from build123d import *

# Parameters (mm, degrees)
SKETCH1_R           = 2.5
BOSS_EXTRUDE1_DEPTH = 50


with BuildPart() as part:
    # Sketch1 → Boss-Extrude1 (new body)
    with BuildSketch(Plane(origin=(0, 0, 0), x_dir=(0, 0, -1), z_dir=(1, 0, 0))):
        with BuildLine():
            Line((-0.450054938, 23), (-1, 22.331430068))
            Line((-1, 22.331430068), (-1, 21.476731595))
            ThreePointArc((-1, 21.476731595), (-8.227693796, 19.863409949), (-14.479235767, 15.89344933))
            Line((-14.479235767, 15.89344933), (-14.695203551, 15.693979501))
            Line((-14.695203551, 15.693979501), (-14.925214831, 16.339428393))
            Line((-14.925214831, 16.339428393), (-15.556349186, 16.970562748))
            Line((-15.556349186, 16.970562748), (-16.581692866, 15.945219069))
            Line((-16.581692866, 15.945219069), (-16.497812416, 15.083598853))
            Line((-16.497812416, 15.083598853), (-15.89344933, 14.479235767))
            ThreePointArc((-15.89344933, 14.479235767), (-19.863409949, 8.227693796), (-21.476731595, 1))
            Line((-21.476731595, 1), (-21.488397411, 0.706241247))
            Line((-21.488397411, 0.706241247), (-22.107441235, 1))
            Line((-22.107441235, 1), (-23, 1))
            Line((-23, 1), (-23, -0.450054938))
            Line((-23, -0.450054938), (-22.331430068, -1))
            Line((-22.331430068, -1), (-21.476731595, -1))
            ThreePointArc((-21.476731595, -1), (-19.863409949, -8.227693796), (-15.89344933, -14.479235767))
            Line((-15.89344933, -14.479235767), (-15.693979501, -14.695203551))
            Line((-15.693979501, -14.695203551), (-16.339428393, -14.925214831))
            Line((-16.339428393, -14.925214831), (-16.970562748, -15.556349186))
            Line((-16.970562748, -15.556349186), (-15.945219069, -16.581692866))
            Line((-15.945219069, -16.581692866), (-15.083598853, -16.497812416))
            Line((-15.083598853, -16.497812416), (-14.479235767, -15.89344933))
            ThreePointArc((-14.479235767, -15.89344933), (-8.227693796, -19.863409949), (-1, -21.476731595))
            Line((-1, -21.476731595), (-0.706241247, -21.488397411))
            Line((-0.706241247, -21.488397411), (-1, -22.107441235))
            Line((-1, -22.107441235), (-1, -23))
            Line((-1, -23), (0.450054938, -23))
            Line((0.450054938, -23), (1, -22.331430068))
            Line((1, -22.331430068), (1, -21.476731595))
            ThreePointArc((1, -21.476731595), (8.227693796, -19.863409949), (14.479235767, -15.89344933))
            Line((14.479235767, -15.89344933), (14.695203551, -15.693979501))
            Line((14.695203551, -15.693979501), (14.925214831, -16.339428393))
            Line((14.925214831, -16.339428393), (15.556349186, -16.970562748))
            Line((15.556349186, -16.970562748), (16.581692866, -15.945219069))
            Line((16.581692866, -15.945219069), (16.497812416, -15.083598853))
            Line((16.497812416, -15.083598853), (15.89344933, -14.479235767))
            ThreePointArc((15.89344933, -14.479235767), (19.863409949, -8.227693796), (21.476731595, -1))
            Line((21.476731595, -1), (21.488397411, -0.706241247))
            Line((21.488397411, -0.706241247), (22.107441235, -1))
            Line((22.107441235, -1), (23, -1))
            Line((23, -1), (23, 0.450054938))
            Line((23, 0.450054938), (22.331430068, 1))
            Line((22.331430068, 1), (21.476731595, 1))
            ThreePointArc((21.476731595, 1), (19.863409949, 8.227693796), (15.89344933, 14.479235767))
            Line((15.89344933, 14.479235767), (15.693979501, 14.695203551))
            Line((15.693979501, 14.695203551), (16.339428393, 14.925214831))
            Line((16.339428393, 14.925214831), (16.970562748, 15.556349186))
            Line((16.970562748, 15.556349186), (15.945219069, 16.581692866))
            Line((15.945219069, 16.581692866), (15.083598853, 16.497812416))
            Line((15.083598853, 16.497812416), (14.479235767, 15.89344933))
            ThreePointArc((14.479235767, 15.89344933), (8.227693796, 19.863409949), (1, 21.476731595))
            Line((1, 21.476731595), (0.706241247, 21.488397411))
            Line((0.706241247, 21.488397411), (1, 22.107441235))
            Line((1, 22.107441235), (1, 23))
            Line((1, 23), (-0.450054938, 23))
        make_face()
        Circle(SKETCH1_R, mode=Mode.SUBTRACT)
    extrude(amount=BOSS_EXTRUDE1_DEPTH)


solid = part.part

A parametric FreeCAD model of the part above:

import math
import FreeCAD as App
import Part
import Sketcher

V = App.Vector
Q = App.Units.Quantity

doc = App.newDocument("Part")
body = doc.addObject("PartDesign::Body", "Body")

sketch1 = body.newObject("Sketcher::SketchObject", "Sketch")
sketch1.AttachmentSupport = (doc.getObject("YZ_Plane"), [""])
sketch1.MapMode = "FlatFace"
sketch1.addGeometry([
    Part.LineSegment(V(23, 0.450055, 0), V(22.33143, 1, 0)),
    Part.LineSegment(V(22.33143, 1, 0), V(21.476732, 1, 0)),
    Part.ArcOfCircle(Part.Circle(V(0, 0, 0), V(0, 0, 1), 21.5), math.radians(2.665882), math.radians(42.334118)),
    Part.LineSegment(V(15.893449, 14.479236, 0), V(15.69398, 14.695204, 0)),
    Part.LineSegment(V(15.69398, 14.695204, 0), V(16.339428, 14.925215, 0)),
    Part.LineSegment(V(16.339428, 14.925215, 0), V(16.970563, 15.556349, 0)),
    Part.LineSegment(V(16.970563, 15.556349, 0), V(15.945219, 16.581693, 0)),
    Part.LineSegment(V(15.945219, 16.581693, 0), V(15.083599, 16.497812, 0)),
    Part.LineSegment(V(15.083599, 16.497812, 0), V(14.479236, 15.893449, 0)),
    Part.ArcOfCircle(Part.Circle(V(0, 0, 0), V(0, 0, 1), 21.5), math.radians(47.665882), math.radians(87.334118)),
    Part.LineSegment(V(1, 21.476732, 0), V(0.706241, 21.488397, 0)),
    Part.LineSegment(V(0.706241, 21.488397, 0), V(1, 22.107441, 0)),
    Part.LineSegment(V(1, 22.107441, 0), V(1, 23, 0)),
    Part.LineSegment(V(1, 23, 0), V(-0.450055, 23, 0)),
    Part.LineSegment(V(-0.450055, 23, 0), V(-1, 22.33143, 0)),
    Part.LineSegment(V(-1, 22.33143, 0), V(-1, 21.476732, 0)),
    Part.ArcOfCircle(Part.Circle(V(0, 0, 0), V(0, 0, 1), 21.5), math.radians(92.665882), math.radians(132.334118)),
    Part.LineSegment(V(-14.479236, 15.893449, 0), V(-14.695204, 15.69398, 0)),
    Part.LineSegment(V(-14.695204, 15.69398, 0), V(-14.925215, 16.339428, 0)),
    Part.LineSegment(V(-14.925215, 16.339428, 0), V(-15.556349, 16.970563, 0)),
    Part.LineSegment(V(-15.556349, 16.970563, 0), V(-16.581693, 15.945219, 0)),
    Part.LineSegment(V(-16.581693, 15.945219, 0), V(-16.497812, 15.083599, 0)),
    Part.LineSegment(V(-16.497812, 15.083599, 0), V(-15.893449, 14.479236, 0)),
    Part.ArcOfCircle(Part.Circle(V(0, 0, 0), V(0, 0, 1), 21.5), math.radians(137.665882), math.radians(177.334118)),
    Part.LineSegment(V(-21.476732, 1, 0), V(-21.488397, 0.706241, 0)),
    Part.LineSegment(V(-21.488397, 0.706241, 0), V(-22.107441, 1, 0)),
    Part.LineSegment(V(-22.107441, 1, 0), V(-23, 1, 0)),
    Part.LineSegment(V(-23, 1, 0), V(-23, -0.450055, 0)),
    Part.LineSegment(V(-23, -0.450055, 0), V(-22.33143, -1, 0)),
    Part.LineSegment(V(-22.33143, -1, 0), V(-21.476732, -1, 0)),
    Part.ArcOfCircle(Part.Circle(V(0, 0, 0), V(0, 0, 1), 21.5), math.radians(-177.334118), math.radians(-137.665882)),
    Part.LineSegment(V(-15.893449, -14.479236, 0), V(-15.69398, -14.695204, 0)),
    Part.LineSegment(V(-15.69398, -14.695204, 0), V(-16.339428, -14.925215, 0)),
    Part.LineSegment(V(-16.339428, -14.925215, 0), V(-16.970563, -15.556349, 0)),
    Part.LineSegment(V(-16.970563, -15.556349, 0), V(-15.945219, -16.581693, 0)),
    Part.LineSegment(V(-15.945219, -16.581693, 0), V(-15.083599, -16.497812, 0)),
    Part.LineSegment(V(-15.083599, -16.497812, 0), V(-14.479236, -15.893449, 0)),
    Part.ArcOfCircle(Part.Circle(V(0, 0, 0), V(0, 0, 1), 21.5), math.radians(-132.334118), math.radians(-92.665882)),
    Part.LineSegment(V(-1, -21.476732, 0), V(-0.706241, -21.488397, 0)),
    Part.LineSegment(V(-0.706241, -21.488397, 0), V(-1, -22.107441, 0)),
    Part.LineSegment(V(-1, -22.107441, 0), V(-1, -23, 0)),
    Part.LineSegment(V(-1, -23, 0), V(0.450055, -23, 0)),
    Part.LineSegment(V(0.450055, -23, 0), V(1, -22.33143, 0)),
    Part.LineSegment(V(1, -22.33143, 0), V(1, -21.476732, 0)),
    Part.ArcOfCircle(Part.Circle(V(0, 0, 0), V(0, 0, 1), 21.5), math.radians(-87.334118), math.radians(-47.665882)),
    Part.LineSegment(V(14.479236, -15.893449, 0), V(14.695204, -15.69398, 0)),
    Part.LineSegment(V(14.695204, -15.69398, 0), V(14.925215, -16.339428, 0)),
    Part.LineSegment(V(14.925215, -16.339428, 0), V(15.556349, -16.970563, 0)),
    Part.LineSegment(V(15.556349, -16.970563, 0), V(16.581693, -15.945219, 0)),
    Part.LineSegment(V(16.581693, -15.945219, 0), V(16.497812, -15.083599, 0)),
    Part.LineSegment(V(16.497812, -15.083599, 0), V(15.893449, -14.479236, 0)),
    Part.ArcOfCircle(Part.Circle(V(0, 0, 0), V(0, 0, 1), 21.5), math.radians(-42.334118), math.radians(-2.665882)),
    Part.LineSegment(V(21.476732, -1, 0), V(21.488397, -0.706241, 0)),
    Part.LineSegment(V(21.488397, -0.706241, 0), V(22.107441, -1, 0)),
    Part.LineSegment(V(22.107441, -1, 0), V(23, -1, 0)),
    Part.LineSegment(V(23, -1, 0), V(23, 0.450055, 0)),
    Part.Circle(V(0, 0, 0), V(0, 0, 1), 2.5),
], False)
sketch1.addConstraint([
    Sketcher.Constraint("Coincident", 0, 2, 1, 1),
    Sketcher.Constraint("Coincident", 1, 2, 2, 1),
    Sketcher.Constraint("Coincident", 2, 2, 3, 1),
    Sketcher.Constraint("Coincident", 3, 2, 4, 1),
    Sketcher.Constraint("Coincident", 4, 2, 5, 1),
    Sketcher.Constraint("Coincident", 5, 2, 6, 1),
    Sketcher.Constraint("Coincident", 6, 2, 7, 1),
    Sketcher.Constraint("Coincident", 7, 2, 8, 1),
    Sketcher.Constraint("Coincident", 8, 2, 9, 1),
    Sketcher.Constraint("Coincident", 9, 2, 10, 1),
    Sketcher.Constraint("Coincident", 10, 2, 11, 1),
    Sketcher.Constraint("Coincident", 11, 2, 12, 1),
    Sketcher.Constraint("Coincident", 12, 2, 13, 1),
    Sketcher.Constraint("Coincident", 13, 2, 14, 1),
    Sketcher.Constraint("Coincident", 14, 2, 15, 1),
    Sketcher.Constraint("Coincident", 15, 2, 16, 1),
    Sketcher.Constraint("Coincident", 16, 2, 17, 1),
    Sketcher.Constraint("Coincident", 17, 2, 18, 1),
    Sketcher.Constraint("Coincident", 18, 2, 19, 1),
    Sketcher.Constraint("Coincident", 19, 2, 20, 1),
    Sketcher.Constraint("Coincident", 20, 2, 21, 1),
    Sketcher.Constraint("Coincident", 21, 2, 22, 1),
    Sketcher.Constraint("Coincident", 22, 2, 23, 1),
    Sketcher.Constraint("Coincident", 23, 2, 24, 1),
    Sketcher.Constraint("Coincident", 24, 2, 25, 1),
    Sketcher.Constraint("Coincident", 25, 2, 26, 1),
    Sketcher.Constraint("Coincident", 26, 2, 27, 1),
    Sketcher.Constraint("Coincident", 27, 2, 28, 1),
    Sketcher.Constraint("Coincident", 28, 2, 29, 1),
    Sketcher.Constraint("Coincident", 29, 2, 30, 1),
    Sketcher.Constraint("Coincident", 30, 2, 31, 1),
    Sketcher.Constraint("Coincident", 31, 2, 32, 1),
    Sketcher.Constraint("Coincident", 32, 2, 33, 1),
    Sketcher.Constraint("Coincident", 33, 2, 34, 1),
    Sketcher.Constraint("Coincident", 34, 2, 35, 1),
    Sketcher.Constraint("Coincident", 35, 2, 36, 1),
    Sketcher.Constraint("Coincident", 36, 2, 37, 1),
    Sketcher.Constraint("Coincident", 37, 2, 38, 1),
    Sketcher.Constraint("Coincident", 38, 2, 39, 1),
    Sketcher.Constraint("Coincident", 39, 2, 40, 1),
    Sketcher.Constraint("Coincident", 40, 2, 41, 1),
    Sketcher.Constraint("Coincident", 41, 2, 42, 1),
    Sketcher.Constraint("Coincident", 42, 2, 43, 1),
    Sketcher.Constraint("Coincident", 43, 2, 44, 1),
    Sketcher.Constraint("Coincident", 44, 2, 45, 1),
    Sketcher.Constraint("Coincident", 45, 2, 46, 1),
    Sketcher.Constraint("Coincident", 46, 2, 47, 1),
    Sketcher.Constraint("Coincident", 47, 2, 48, 1),
    Sketcher.Constraint("Coincident", 48, 2, 49, 1),
    Sketcher.Constraint("Coincident", 49, 2, 50, 1),
    Sketcher.Constraint("Coincident", 50, 2, 51, 1),
    Sketcher.Constraint("Coincident", 51, 2, 52, 1),
    Sketcher.Constraint("Coincident", 52, 2, 53, 1),
    Sketcher.Constraint("Coincident", 53, 2, 54, 1),
    Sketcher.Constraint("Coincident", 54, 2, 55, 1),
    Sketcher.Constraint("Coincident", 55, 2, 0, 1),
    Sketcher.Constraint("Horizontal", 1),
    Sketcher.Constraint("Vertical", 12),
    Sketcher.Constraint("Horizontal", 13),
    Sketcher.Constraint("Vertical", 15),
    Sketcher.Constraint("Horizontal", 26),
    Sketcher.Constraint("Vertical", 27),
    Sketcher.Constraint("Horizontal", 29),
    Sketcher.Constraint("Vertical", 40),
    Sketcher.Constraint("Horizontal", 41),
    Sketcher.Constraint("Vertical", 43),
    Sketcher.Constraint("Horizontal", 54),
    Sketcher.Constraint("Vertical", 55),
    Sketcher.Constraint("Coincident", 2, 3, -1, 1),
    Sketcher.Constraint("Coincident", 9, 3, -1, 1),
    Sketcher.Constraint("Coincident", 16, 3, -1, 1),
    Sketcher.Constraint("Coincident", 23, 3, -1, 1),
    Sketcher.Constraint("Coincident", 30, 3, -1, 1),
    Sketcher.Constraint("Coincident", 37, 3, -1, 1),
    Sketcher.Constraint("Coincident", 44, 3, -1, 1),
    Sketcher.Constraint("Coincident", 51, 3, -1, 1),
    Sketcher.Constraint("Coincident", 56, 3, -1, 1),
    Sketcher.Constraint("Equal", 2, 9),
    Sketcher.Constraint("Equal", 9, 16),
    Sketcher.Constraint("Equal", 16, 23),
    Sketcher.Constraint("Equal", 23, 30),
    Sketcher.Constraint("Equal", 30, 37),
    Sketcher.Constraint("Equal", 37, 44),
    Sketcher.Constraint("Equal", 44, 51),
    Sketcher.Constraint("Symmetric", 0, 2, 28, 2, -1, 1),
    Sketcher.Constraint("Symmetric", 3, 2, 31, 2, -1, 1),
    Sketcher.Constraint("Symmetric", 4, 2, 32, 2, -1, 1),
    Sketcher.Constraint("Symmetric", 5, 2, 33, 2, -1, 1),
    Sketcher.Constraint("Symmetric", 6, 2, 34, 2, -1, 1),
    Sketcher.Constraint("Symmetric", 7, 2, 35, 2, -1, 1),
    Sketcher.Constraint("Symmetric", 10, 2, 38, 2, -1, 1),
    Sketcher.Constraint("Symmetric", 11, 2, 39, 2, -1, 1),
    Sketcher.Constraint("Symmetric", 13, 2, 41, 2, -1, 1),
    Sketcher.Constraint("Symmetric", 14, 2, 42, 2, -1, 1),
    Sketcher.Constraint("Symmetric", 17, 2, 45, 2, -1, 1),
    Sketcher.Constraint("Symmetric", 18, 2, 46, 2, -1, 1),
    Sketcher.Constraint("Symmetric", 19, 2, 47, 2, -1, 1),
    Sketcher.Constraint("Symmetric", 20, 2, 48, 2, -1, 1),
    Sketcher.Constraint("Symmetric", 21, 2, 49, 2, -1, 1),
    Sketcher.Constraint("Symmetric", 24, 2, 52, 2, -1, 1),
    Sketcher.Constraint("Symmetric", 25, 2, 53, 2, -1, 1),
    Sketcher.Constraint("Symmetric", 27, 2, 55, 2, -1, 1),
    Sketcher.Constraint("Perpendicular", 5, 6),
    Sketcher.Constraint("Perpendicular", 6, 8),
    Sketcher.Constraint("Perpendicular", 0, 14),
    Sketcher.Constraint("Perpendicular", 3, 17),
    Sketcher.Constraint("Perpendicular", 4, 18),
    Sketcher.Constraint("Perpendicular", 8, 19),
    Sketcher.Constraint("Perpendicular", 19, 20),
    Sketcher.Constraint("Perpendicular", 7, 21),
    Sketcher.Constraint("Perpendicular", 20, 22),
    Sketcher.Constraint("Perpendicular", 10, 24),
    Sketcher.Constraint("Perpendicular", 11, 25),
    Sketcher.Constraint("Perpendicular", 17, 31),
    Sketcher.Constraint("Perpendicular", 34, 36),
    Sketcher.Constraint("Perpendicular", 24, 38),
    Sketcher.Constraint("Perpendicular", 31, 45),
    Sketcher.Constraint("Perpendicular", 48, 50),
    Sketcher.Constraint("Perpendicular", 38, 52),
    Sketcher.Constraint("Horizontal", 9, 2, 15, 2),
    Sketcher.Constraint("Horizontal", 8, 2, 16, 2),
    Sketcher.Constraint("Horizontal", 2, 2, 22, 2),
    Sketcher.Constraint("Horizontal", 1, 2, 23, 2),
    Sketcher.Constraint("Horizontal", 23, 2, 25, 2),
    Sketcher.Constraint("Vertical", 9, 2, 11, 2),
    Sketcher.Constraint("Equal", 54, 12),
    Sketcher.Constraint("Equal", 29, 15),
    Sketcher.Constraint("Equal", 41, 27),
    Sketcher.Constraint("Equal", 0, 7),
    Sketcher.Constraint("Equal", 3, 10),
    Sketcher.Constraint("Equal", 4, 11),
    Sketcher.Constraint("Equal", 7, 14),
    Sketcher.Constraint("Equal", 10, 17),
    Sketcher.Constraint("Equal", 11, 18),
    Sketcher.Constraint("Equal", 5, 19),
    Sketcher.Constraint("Equal", 6, 20),
    Sketcher.Constraint("Equal", 8, 22),
    Sketcher.Constraint("Diameter", 56, 5.0),
    Sketcher.Constraint("Radius", 2, 21.5),
    Sketcher.Constraint("Angle", 5, Q("45 deg")),
    Sketcher.Constraint("DistanceY", -1, 1, 0, 2, 1.0),
    Sketcher.Constraint("DistanceY", -1, 1, 12, 2, 23.0),
    Sketcher.Constraint("DistanceX", 1, 2, 1, 1, 0.854698),
    Sketcher.Constraint("Distance", 8, 0.854698),
    Sketcher.Constraint("DistanceX", 26, 2, 26, 1, 0.892559),
    Sketcher.Constraint("DistanceX", -1, 1, 7, 2, 15.083599),
    Sketcher.Constraint("Distance", 3, 0.29399),
    Sketcher.Constraint("Distance", 5, 0.892559),
    Sketcher.Constraint("DistanceX", 13, 2, 13, 1, 1.450055),
    Sketcher.Constraint("DistanceX", -1, 1, 3, 2, 15.69398),
    Sketcher.Constraint("DistanceX", -1, 1, 4, 2, 16.339428),
    Sketcher.Constraint("DistanceY", -1, 1, 5, 2, 15.556349),
])
pad1 = body.newObject("PartDesign::Pad", "Pad")
pad1.Profile = sketch1
pad1.Length = 50

doc.recompute()
